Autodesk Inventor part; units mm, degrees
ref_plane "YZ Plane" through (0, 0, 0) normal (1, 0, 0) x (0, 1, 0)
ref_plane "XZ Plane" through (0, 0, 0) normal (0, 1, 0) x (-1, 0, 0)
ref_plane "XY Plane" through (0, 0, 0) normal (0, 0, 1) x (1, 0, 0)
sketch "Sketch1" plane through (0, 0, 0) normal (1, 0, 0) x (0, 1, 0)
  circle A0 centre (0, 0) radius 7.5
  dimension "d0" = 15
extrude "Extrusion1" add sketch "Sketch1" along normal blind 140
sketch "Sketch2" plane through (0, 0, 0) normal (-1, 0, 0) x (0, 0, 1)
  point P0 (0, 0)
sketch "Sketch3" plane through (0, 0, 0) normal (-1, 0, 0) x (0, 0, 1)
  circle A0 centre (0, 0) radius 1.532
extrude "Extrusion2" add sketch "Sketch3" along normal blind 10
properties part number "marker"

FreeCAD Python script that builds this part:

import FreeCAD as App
import Part
import Sketcher
from FreeCAD import Vector

doc = App.newDocument("Part")
body = doc.addObject("PartDesign::Body", "Body")

# Sketch on YZ plane
sketch1 = doc.addObject("Sketcher::SketchObject", "Sketch")
body.addObject(sketch1)
sketch1.AttachmentSupport = (doc.YZ_Plane, [""])
sketch1.MapMode = "FlatFace"
sketch1.addGeometry(Part.Circle(Vector(0, 0, 0), Vector(0, 0, 1), 7.5), False)
sketch1.addConstraint([
    Sketcher.Constraint("Coincident", 0, 3, -1, 1),
    Sketcher.Constraint("Diameter", 0, 15.0),
])
pad1 = doc.addObject("PartDesign::Pad", "Pad")
body.addObject(pad1)
pad1.Profile = sketch1
pad1.Length = 140

# Sketch on YZ plane
sketch2 = doc.addObject("Sketcher::SketchObject", "Sketch001")
body.addObject(sketch2)
sketch2.AttachmentSupport = (doc.YZ_Plane, [""])
sketch2.MapMode = "FlatFace"
sketch2.addGeometry(Part.Circle(Vector(0, 0, 0), Vector(0, 0, 1), 1.532), False)
sketch2.addConstraint([
    Sketcher.Constraint("Coincident", 0, 3, -1, 1),
    Sketcher.Constraint("Diameter", 0, 3.064),
])
pad2 = doc.addObject("PartDesign::Pad", "Pad001")
body.addObject(pad2)
pad2.Profile = sketch2
pad2.Length = 10
pad2.Reversed = True

doc.recompute()
